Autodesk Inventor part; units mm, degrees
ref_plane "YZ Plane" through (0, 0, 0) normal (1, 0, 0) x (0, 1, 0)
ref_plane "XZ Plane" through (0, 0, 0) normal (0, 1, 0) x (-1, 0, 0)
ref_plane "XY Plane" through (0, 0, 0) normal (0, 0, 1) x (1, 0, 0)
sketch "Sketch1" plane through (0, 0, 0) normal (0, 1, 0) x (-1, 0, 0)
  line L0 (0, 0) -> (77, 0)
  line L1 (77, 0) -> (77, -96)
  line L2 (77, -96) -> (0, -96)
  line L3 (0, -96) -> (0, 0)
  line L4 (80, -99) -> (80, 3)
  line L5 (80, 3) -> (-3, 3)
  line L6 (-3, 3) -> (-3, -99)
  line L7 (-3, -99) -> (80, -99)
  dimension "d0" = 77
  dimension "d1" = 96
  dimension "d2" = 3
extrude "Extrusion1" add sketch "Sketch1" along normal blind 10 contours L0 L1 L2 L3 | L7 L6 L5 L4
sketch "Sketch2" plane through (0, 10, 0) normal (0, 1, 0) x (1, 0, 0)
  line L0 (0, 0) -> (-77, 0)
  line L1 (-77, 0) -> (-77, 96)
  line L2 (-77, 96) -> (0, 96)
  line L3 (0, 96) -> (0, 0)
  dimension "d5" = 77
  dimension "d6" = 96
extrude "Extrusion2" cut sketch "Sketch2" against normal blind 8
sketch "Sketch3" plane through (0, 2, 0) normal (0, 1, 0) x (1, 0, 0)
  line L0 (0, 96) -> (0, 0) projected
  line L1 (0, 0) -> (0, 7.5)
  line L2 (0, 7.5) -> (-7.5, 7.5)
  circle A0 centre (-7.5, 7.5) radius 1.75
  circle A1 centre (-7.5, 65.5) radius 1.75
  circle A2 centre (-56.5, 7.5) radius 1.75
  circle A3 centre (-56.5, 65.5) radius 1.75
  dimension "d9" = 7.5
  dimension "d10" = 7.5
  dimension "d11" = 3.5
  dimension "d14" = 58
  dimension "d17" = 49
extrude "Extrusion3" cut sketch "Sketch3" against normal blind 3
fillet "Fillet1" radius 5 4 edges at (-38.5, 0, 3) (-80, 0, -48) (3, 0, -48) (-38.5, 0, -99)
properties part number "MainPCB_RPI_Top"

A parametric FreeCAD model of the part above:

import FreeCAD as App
import Part
import Sketcher
from FreeCAD import Vector


def edges_at(feature, points):
    """Names of the edges that pass closest to the given points."""
    edges = feature.Shape.Edges
    near = lambda p: min(range(len(edges)), key=lambda i: edges[i].distToShape(Part.Vertex(*p))[0])
    return sorted({f"Edge{near(p) + 1}" for p in points})

doc = App.newDocument("Part")
body = doc.addObject("PartDesign::Body", "Body")

sketch1 = body.newObject("Sketcher::SketchObject", "Sketch")
sketch1.AttachmentSupport = (doc.getObject("XZ_Plane"), [""])
sketch1.MapMode = "FlatFace"
sketch1.addGeometry(Part.LineSegment(Vector(3, -99, 0), Vector(-80, -99, 0)), False)
sketch1.addGeometry(Part.LineSegment(Vector(-80, -99, 0), Vector(-80, 3, 0)), False)
sketch1.addGeometry(Part.LineSegment(Vector(-80, 3, 0), Vector(3, 3, 0)), False)
sketch1.addGeometry(Part.LineSegment(Vector(3, 3, 0), Vector(3, -99, 0)), False)
sketch1.addConstraint(Sketcher.Constraint("Coincident", 0, 2, 1, 1))
sketch1.addConstraint(Sketcher.Constraint("Coincident", 1, 2, 2, 1))
sketch1.addConstraint(Sketcher.Constraint("Coincident", 2, 2, 3, 1))
sketch1.addConstraint(Sketcher.Constraint("Coincident", 3, 2, 0, 1))
sketch1.addConstraint(Sketcher.Constraint("Horizontal", 0))
sketch1.addConstraint(Sketcher.Constraint("Vertical", 1))
sketch1.addConstraint(Sketcher.Constraint("Horizontal", 2))
sketch1.addConstraint(Sketcher.Constraint("Vertical", 3))
sketch1.addConstraint(Sketcher.Constraint("DistanceY", -1, 1, 1, 2, 3.0))
sketch1.addConstraint(Sketcher.Constraint("DistanceX", -1, 1, 2, 2, 3.0))
sketch1.addConstraint(Sketcher.Constraint("DistanceX", 0, 2, 0, 1, 83.0))
sketch1.addConstraint(Sketcher.Constraint("DistanceY", 1, 1, 1, 2, 102.0))
pad1 = body.newObject("PartDesign::Pad", "Pad")
pad1.Profile = sketch1
pad1.Length = 10
pad1.Reversed = True

sketch2 = body.newObject("Sketcher::SketchObject", "Sketch001")
sketch2.AttachmentSupport = (doc.getObject("XZ_Plane"), [""])
sketch2.MapMode = "FlatFace"
sketch2.AttachmentOffset = App.Placement(Vector(0, 0, -10), App.Rotation())
sketch2.addGeometry(Part.LineSegment(Vector(-77, 0, 0), Vector(0, 0, 0)), False)
sketch2.addGeometry(Part.LineSegment(Vector(0, 0, 0), Vector(0, -96, 0)), False)
sketch2.addGeometry(Part.LineSegment(Vector(0, -96, 0), Vector(-77, -96, 0)), False)
sketch2.addGeometry(Part.LineSegment(Vector(-77, -96, 0), Vector(-77, 0, 0)), False)
sketch2.addConstraint(Sketcher.Constraint("Coincident", 0, 2, 1, 1))
sketch2.addConstraint(Sketcher.Constraint("Coincident", 1, 2, 2, 1))
sketch2.addConstraint(Sketcher.Constraint("Coincident", 2, 2, 3, 1))
sketch2.addConstraint(Sketcher.Constraint("Coincident", 3, 2, 0, 1))
sketch2.addConstraint(Sketcher.Constraint("Horizontal", 0))
sketch2.addConstraint(Sketcher.Constraint("Vertical", 1))
sketch2.addConstraint(Sketcher.Constraint("Horizontal", 2))
sketch2.addConstraint(Sketcher.Constraint("Vertical", 3))
sketch2.addConstraint(Sketcher.Constraint("Coincident", 0, 2, -1, 1))
sketch2.addConstraint(Sketcher.Constraint("DistanceX", 0, 1, 0, 2, 77.0))
sketch2.addConstraint(Sketcher.Constraint("DistanceY", 1, 2, 1, 1, 96.0))
pocket1 = body.newObject("PartDesign::Pocket", "Pocket")
pocket1.Profile = sketch2
pocket1.Length = 8
pocket1.Reversed = True

sketch3 = body.newObject("Sketcher::SketchObject", "Sketch002")
sketch3.AttachmentSupport = (doc.getObject("XZ_Plane"), [""])
sketch3.MapMode = "FlatFace"
sketch3.AttachmentOffset = App.Placement(Vector(0, 0, -2), App.Rotation())
sketch3.addGeometry(Part.Circle(Vector(-7.5, -7.5, 0), Vector(0, 0, 1), 1.8), False)
sketch3.addGeometry(Part.Circle(Vector(-7.5, -65.5, 0), Vector(0, 0, 1), 1.8), False)
sketch3.addGeometry(Part.Circle(Vector(-56.5, -7.5, 0), Vector(0, 0, 1), 1.8), False)
sketch3.addGeometry(Part.Circle(Vector(-56.5, -65.5, 0), Vector(0, 0, 1), 1.8), False)
sketch3.addConstraint(Sketcher.Constraint("Equal", 0, 1))
sketch3.addConstraint(Sketcher.Constraint("Equal", 1, 2))
sketch3.addConstraint(Sketcher.Constraint("Equal", 2, 3))
sketch3.addConstraint(Sketcher.Constraint("Horizontal", 0, 3, 2, 3))
sketch3.addConstraint(Sketcher.Constraint("Horizontal", 1, 3, 3, 3))
sketch3.addConstraint(Sketcher.Constraint("Vertical", 0, 3, 1, 3))
sketch3.addConstraint(Sketcher.Constraint("Vertical", 2, 3, 3, 3))
sketch3.addConstraint(Sketcher.Constraint("Diameter", 0, 3.5))
sketch3.addConstraint(Sketcher.Constraint("DistanceY", 1, 3, 0, 3, 58.0))
sketch3.addConstraint(Sketcher.Constraint("DistanceX", 2, 3, 0, 3, 49.0))
sketch3.addConstraint(Sketcher.Constraint("DistanceX", 0, 3, -1, 1, 7.5))
sketch3.addConstraint(Sketcher.Constraint("DistanceY", 0, 3, -1, 1, 7.5))
pocket2 = body.newObject("PartDesign::Pocket", "Pocket001")
pocket2.Profile = sketch3
pocket2.Length = 3
pocket2.Reversed = True
doc.recompute()

fillet = body.newObject("PartDesign::Fillet", "Fillet")
fillet.Base = (pocket2, edges_at(pocket2, [
    (-38.5, 0, 3),
    (-80, 0, -48),
    (3, 0, -48),
    (-38.5, 0, -99),
]))
fillet.Radius = 5

doc.recompute()
